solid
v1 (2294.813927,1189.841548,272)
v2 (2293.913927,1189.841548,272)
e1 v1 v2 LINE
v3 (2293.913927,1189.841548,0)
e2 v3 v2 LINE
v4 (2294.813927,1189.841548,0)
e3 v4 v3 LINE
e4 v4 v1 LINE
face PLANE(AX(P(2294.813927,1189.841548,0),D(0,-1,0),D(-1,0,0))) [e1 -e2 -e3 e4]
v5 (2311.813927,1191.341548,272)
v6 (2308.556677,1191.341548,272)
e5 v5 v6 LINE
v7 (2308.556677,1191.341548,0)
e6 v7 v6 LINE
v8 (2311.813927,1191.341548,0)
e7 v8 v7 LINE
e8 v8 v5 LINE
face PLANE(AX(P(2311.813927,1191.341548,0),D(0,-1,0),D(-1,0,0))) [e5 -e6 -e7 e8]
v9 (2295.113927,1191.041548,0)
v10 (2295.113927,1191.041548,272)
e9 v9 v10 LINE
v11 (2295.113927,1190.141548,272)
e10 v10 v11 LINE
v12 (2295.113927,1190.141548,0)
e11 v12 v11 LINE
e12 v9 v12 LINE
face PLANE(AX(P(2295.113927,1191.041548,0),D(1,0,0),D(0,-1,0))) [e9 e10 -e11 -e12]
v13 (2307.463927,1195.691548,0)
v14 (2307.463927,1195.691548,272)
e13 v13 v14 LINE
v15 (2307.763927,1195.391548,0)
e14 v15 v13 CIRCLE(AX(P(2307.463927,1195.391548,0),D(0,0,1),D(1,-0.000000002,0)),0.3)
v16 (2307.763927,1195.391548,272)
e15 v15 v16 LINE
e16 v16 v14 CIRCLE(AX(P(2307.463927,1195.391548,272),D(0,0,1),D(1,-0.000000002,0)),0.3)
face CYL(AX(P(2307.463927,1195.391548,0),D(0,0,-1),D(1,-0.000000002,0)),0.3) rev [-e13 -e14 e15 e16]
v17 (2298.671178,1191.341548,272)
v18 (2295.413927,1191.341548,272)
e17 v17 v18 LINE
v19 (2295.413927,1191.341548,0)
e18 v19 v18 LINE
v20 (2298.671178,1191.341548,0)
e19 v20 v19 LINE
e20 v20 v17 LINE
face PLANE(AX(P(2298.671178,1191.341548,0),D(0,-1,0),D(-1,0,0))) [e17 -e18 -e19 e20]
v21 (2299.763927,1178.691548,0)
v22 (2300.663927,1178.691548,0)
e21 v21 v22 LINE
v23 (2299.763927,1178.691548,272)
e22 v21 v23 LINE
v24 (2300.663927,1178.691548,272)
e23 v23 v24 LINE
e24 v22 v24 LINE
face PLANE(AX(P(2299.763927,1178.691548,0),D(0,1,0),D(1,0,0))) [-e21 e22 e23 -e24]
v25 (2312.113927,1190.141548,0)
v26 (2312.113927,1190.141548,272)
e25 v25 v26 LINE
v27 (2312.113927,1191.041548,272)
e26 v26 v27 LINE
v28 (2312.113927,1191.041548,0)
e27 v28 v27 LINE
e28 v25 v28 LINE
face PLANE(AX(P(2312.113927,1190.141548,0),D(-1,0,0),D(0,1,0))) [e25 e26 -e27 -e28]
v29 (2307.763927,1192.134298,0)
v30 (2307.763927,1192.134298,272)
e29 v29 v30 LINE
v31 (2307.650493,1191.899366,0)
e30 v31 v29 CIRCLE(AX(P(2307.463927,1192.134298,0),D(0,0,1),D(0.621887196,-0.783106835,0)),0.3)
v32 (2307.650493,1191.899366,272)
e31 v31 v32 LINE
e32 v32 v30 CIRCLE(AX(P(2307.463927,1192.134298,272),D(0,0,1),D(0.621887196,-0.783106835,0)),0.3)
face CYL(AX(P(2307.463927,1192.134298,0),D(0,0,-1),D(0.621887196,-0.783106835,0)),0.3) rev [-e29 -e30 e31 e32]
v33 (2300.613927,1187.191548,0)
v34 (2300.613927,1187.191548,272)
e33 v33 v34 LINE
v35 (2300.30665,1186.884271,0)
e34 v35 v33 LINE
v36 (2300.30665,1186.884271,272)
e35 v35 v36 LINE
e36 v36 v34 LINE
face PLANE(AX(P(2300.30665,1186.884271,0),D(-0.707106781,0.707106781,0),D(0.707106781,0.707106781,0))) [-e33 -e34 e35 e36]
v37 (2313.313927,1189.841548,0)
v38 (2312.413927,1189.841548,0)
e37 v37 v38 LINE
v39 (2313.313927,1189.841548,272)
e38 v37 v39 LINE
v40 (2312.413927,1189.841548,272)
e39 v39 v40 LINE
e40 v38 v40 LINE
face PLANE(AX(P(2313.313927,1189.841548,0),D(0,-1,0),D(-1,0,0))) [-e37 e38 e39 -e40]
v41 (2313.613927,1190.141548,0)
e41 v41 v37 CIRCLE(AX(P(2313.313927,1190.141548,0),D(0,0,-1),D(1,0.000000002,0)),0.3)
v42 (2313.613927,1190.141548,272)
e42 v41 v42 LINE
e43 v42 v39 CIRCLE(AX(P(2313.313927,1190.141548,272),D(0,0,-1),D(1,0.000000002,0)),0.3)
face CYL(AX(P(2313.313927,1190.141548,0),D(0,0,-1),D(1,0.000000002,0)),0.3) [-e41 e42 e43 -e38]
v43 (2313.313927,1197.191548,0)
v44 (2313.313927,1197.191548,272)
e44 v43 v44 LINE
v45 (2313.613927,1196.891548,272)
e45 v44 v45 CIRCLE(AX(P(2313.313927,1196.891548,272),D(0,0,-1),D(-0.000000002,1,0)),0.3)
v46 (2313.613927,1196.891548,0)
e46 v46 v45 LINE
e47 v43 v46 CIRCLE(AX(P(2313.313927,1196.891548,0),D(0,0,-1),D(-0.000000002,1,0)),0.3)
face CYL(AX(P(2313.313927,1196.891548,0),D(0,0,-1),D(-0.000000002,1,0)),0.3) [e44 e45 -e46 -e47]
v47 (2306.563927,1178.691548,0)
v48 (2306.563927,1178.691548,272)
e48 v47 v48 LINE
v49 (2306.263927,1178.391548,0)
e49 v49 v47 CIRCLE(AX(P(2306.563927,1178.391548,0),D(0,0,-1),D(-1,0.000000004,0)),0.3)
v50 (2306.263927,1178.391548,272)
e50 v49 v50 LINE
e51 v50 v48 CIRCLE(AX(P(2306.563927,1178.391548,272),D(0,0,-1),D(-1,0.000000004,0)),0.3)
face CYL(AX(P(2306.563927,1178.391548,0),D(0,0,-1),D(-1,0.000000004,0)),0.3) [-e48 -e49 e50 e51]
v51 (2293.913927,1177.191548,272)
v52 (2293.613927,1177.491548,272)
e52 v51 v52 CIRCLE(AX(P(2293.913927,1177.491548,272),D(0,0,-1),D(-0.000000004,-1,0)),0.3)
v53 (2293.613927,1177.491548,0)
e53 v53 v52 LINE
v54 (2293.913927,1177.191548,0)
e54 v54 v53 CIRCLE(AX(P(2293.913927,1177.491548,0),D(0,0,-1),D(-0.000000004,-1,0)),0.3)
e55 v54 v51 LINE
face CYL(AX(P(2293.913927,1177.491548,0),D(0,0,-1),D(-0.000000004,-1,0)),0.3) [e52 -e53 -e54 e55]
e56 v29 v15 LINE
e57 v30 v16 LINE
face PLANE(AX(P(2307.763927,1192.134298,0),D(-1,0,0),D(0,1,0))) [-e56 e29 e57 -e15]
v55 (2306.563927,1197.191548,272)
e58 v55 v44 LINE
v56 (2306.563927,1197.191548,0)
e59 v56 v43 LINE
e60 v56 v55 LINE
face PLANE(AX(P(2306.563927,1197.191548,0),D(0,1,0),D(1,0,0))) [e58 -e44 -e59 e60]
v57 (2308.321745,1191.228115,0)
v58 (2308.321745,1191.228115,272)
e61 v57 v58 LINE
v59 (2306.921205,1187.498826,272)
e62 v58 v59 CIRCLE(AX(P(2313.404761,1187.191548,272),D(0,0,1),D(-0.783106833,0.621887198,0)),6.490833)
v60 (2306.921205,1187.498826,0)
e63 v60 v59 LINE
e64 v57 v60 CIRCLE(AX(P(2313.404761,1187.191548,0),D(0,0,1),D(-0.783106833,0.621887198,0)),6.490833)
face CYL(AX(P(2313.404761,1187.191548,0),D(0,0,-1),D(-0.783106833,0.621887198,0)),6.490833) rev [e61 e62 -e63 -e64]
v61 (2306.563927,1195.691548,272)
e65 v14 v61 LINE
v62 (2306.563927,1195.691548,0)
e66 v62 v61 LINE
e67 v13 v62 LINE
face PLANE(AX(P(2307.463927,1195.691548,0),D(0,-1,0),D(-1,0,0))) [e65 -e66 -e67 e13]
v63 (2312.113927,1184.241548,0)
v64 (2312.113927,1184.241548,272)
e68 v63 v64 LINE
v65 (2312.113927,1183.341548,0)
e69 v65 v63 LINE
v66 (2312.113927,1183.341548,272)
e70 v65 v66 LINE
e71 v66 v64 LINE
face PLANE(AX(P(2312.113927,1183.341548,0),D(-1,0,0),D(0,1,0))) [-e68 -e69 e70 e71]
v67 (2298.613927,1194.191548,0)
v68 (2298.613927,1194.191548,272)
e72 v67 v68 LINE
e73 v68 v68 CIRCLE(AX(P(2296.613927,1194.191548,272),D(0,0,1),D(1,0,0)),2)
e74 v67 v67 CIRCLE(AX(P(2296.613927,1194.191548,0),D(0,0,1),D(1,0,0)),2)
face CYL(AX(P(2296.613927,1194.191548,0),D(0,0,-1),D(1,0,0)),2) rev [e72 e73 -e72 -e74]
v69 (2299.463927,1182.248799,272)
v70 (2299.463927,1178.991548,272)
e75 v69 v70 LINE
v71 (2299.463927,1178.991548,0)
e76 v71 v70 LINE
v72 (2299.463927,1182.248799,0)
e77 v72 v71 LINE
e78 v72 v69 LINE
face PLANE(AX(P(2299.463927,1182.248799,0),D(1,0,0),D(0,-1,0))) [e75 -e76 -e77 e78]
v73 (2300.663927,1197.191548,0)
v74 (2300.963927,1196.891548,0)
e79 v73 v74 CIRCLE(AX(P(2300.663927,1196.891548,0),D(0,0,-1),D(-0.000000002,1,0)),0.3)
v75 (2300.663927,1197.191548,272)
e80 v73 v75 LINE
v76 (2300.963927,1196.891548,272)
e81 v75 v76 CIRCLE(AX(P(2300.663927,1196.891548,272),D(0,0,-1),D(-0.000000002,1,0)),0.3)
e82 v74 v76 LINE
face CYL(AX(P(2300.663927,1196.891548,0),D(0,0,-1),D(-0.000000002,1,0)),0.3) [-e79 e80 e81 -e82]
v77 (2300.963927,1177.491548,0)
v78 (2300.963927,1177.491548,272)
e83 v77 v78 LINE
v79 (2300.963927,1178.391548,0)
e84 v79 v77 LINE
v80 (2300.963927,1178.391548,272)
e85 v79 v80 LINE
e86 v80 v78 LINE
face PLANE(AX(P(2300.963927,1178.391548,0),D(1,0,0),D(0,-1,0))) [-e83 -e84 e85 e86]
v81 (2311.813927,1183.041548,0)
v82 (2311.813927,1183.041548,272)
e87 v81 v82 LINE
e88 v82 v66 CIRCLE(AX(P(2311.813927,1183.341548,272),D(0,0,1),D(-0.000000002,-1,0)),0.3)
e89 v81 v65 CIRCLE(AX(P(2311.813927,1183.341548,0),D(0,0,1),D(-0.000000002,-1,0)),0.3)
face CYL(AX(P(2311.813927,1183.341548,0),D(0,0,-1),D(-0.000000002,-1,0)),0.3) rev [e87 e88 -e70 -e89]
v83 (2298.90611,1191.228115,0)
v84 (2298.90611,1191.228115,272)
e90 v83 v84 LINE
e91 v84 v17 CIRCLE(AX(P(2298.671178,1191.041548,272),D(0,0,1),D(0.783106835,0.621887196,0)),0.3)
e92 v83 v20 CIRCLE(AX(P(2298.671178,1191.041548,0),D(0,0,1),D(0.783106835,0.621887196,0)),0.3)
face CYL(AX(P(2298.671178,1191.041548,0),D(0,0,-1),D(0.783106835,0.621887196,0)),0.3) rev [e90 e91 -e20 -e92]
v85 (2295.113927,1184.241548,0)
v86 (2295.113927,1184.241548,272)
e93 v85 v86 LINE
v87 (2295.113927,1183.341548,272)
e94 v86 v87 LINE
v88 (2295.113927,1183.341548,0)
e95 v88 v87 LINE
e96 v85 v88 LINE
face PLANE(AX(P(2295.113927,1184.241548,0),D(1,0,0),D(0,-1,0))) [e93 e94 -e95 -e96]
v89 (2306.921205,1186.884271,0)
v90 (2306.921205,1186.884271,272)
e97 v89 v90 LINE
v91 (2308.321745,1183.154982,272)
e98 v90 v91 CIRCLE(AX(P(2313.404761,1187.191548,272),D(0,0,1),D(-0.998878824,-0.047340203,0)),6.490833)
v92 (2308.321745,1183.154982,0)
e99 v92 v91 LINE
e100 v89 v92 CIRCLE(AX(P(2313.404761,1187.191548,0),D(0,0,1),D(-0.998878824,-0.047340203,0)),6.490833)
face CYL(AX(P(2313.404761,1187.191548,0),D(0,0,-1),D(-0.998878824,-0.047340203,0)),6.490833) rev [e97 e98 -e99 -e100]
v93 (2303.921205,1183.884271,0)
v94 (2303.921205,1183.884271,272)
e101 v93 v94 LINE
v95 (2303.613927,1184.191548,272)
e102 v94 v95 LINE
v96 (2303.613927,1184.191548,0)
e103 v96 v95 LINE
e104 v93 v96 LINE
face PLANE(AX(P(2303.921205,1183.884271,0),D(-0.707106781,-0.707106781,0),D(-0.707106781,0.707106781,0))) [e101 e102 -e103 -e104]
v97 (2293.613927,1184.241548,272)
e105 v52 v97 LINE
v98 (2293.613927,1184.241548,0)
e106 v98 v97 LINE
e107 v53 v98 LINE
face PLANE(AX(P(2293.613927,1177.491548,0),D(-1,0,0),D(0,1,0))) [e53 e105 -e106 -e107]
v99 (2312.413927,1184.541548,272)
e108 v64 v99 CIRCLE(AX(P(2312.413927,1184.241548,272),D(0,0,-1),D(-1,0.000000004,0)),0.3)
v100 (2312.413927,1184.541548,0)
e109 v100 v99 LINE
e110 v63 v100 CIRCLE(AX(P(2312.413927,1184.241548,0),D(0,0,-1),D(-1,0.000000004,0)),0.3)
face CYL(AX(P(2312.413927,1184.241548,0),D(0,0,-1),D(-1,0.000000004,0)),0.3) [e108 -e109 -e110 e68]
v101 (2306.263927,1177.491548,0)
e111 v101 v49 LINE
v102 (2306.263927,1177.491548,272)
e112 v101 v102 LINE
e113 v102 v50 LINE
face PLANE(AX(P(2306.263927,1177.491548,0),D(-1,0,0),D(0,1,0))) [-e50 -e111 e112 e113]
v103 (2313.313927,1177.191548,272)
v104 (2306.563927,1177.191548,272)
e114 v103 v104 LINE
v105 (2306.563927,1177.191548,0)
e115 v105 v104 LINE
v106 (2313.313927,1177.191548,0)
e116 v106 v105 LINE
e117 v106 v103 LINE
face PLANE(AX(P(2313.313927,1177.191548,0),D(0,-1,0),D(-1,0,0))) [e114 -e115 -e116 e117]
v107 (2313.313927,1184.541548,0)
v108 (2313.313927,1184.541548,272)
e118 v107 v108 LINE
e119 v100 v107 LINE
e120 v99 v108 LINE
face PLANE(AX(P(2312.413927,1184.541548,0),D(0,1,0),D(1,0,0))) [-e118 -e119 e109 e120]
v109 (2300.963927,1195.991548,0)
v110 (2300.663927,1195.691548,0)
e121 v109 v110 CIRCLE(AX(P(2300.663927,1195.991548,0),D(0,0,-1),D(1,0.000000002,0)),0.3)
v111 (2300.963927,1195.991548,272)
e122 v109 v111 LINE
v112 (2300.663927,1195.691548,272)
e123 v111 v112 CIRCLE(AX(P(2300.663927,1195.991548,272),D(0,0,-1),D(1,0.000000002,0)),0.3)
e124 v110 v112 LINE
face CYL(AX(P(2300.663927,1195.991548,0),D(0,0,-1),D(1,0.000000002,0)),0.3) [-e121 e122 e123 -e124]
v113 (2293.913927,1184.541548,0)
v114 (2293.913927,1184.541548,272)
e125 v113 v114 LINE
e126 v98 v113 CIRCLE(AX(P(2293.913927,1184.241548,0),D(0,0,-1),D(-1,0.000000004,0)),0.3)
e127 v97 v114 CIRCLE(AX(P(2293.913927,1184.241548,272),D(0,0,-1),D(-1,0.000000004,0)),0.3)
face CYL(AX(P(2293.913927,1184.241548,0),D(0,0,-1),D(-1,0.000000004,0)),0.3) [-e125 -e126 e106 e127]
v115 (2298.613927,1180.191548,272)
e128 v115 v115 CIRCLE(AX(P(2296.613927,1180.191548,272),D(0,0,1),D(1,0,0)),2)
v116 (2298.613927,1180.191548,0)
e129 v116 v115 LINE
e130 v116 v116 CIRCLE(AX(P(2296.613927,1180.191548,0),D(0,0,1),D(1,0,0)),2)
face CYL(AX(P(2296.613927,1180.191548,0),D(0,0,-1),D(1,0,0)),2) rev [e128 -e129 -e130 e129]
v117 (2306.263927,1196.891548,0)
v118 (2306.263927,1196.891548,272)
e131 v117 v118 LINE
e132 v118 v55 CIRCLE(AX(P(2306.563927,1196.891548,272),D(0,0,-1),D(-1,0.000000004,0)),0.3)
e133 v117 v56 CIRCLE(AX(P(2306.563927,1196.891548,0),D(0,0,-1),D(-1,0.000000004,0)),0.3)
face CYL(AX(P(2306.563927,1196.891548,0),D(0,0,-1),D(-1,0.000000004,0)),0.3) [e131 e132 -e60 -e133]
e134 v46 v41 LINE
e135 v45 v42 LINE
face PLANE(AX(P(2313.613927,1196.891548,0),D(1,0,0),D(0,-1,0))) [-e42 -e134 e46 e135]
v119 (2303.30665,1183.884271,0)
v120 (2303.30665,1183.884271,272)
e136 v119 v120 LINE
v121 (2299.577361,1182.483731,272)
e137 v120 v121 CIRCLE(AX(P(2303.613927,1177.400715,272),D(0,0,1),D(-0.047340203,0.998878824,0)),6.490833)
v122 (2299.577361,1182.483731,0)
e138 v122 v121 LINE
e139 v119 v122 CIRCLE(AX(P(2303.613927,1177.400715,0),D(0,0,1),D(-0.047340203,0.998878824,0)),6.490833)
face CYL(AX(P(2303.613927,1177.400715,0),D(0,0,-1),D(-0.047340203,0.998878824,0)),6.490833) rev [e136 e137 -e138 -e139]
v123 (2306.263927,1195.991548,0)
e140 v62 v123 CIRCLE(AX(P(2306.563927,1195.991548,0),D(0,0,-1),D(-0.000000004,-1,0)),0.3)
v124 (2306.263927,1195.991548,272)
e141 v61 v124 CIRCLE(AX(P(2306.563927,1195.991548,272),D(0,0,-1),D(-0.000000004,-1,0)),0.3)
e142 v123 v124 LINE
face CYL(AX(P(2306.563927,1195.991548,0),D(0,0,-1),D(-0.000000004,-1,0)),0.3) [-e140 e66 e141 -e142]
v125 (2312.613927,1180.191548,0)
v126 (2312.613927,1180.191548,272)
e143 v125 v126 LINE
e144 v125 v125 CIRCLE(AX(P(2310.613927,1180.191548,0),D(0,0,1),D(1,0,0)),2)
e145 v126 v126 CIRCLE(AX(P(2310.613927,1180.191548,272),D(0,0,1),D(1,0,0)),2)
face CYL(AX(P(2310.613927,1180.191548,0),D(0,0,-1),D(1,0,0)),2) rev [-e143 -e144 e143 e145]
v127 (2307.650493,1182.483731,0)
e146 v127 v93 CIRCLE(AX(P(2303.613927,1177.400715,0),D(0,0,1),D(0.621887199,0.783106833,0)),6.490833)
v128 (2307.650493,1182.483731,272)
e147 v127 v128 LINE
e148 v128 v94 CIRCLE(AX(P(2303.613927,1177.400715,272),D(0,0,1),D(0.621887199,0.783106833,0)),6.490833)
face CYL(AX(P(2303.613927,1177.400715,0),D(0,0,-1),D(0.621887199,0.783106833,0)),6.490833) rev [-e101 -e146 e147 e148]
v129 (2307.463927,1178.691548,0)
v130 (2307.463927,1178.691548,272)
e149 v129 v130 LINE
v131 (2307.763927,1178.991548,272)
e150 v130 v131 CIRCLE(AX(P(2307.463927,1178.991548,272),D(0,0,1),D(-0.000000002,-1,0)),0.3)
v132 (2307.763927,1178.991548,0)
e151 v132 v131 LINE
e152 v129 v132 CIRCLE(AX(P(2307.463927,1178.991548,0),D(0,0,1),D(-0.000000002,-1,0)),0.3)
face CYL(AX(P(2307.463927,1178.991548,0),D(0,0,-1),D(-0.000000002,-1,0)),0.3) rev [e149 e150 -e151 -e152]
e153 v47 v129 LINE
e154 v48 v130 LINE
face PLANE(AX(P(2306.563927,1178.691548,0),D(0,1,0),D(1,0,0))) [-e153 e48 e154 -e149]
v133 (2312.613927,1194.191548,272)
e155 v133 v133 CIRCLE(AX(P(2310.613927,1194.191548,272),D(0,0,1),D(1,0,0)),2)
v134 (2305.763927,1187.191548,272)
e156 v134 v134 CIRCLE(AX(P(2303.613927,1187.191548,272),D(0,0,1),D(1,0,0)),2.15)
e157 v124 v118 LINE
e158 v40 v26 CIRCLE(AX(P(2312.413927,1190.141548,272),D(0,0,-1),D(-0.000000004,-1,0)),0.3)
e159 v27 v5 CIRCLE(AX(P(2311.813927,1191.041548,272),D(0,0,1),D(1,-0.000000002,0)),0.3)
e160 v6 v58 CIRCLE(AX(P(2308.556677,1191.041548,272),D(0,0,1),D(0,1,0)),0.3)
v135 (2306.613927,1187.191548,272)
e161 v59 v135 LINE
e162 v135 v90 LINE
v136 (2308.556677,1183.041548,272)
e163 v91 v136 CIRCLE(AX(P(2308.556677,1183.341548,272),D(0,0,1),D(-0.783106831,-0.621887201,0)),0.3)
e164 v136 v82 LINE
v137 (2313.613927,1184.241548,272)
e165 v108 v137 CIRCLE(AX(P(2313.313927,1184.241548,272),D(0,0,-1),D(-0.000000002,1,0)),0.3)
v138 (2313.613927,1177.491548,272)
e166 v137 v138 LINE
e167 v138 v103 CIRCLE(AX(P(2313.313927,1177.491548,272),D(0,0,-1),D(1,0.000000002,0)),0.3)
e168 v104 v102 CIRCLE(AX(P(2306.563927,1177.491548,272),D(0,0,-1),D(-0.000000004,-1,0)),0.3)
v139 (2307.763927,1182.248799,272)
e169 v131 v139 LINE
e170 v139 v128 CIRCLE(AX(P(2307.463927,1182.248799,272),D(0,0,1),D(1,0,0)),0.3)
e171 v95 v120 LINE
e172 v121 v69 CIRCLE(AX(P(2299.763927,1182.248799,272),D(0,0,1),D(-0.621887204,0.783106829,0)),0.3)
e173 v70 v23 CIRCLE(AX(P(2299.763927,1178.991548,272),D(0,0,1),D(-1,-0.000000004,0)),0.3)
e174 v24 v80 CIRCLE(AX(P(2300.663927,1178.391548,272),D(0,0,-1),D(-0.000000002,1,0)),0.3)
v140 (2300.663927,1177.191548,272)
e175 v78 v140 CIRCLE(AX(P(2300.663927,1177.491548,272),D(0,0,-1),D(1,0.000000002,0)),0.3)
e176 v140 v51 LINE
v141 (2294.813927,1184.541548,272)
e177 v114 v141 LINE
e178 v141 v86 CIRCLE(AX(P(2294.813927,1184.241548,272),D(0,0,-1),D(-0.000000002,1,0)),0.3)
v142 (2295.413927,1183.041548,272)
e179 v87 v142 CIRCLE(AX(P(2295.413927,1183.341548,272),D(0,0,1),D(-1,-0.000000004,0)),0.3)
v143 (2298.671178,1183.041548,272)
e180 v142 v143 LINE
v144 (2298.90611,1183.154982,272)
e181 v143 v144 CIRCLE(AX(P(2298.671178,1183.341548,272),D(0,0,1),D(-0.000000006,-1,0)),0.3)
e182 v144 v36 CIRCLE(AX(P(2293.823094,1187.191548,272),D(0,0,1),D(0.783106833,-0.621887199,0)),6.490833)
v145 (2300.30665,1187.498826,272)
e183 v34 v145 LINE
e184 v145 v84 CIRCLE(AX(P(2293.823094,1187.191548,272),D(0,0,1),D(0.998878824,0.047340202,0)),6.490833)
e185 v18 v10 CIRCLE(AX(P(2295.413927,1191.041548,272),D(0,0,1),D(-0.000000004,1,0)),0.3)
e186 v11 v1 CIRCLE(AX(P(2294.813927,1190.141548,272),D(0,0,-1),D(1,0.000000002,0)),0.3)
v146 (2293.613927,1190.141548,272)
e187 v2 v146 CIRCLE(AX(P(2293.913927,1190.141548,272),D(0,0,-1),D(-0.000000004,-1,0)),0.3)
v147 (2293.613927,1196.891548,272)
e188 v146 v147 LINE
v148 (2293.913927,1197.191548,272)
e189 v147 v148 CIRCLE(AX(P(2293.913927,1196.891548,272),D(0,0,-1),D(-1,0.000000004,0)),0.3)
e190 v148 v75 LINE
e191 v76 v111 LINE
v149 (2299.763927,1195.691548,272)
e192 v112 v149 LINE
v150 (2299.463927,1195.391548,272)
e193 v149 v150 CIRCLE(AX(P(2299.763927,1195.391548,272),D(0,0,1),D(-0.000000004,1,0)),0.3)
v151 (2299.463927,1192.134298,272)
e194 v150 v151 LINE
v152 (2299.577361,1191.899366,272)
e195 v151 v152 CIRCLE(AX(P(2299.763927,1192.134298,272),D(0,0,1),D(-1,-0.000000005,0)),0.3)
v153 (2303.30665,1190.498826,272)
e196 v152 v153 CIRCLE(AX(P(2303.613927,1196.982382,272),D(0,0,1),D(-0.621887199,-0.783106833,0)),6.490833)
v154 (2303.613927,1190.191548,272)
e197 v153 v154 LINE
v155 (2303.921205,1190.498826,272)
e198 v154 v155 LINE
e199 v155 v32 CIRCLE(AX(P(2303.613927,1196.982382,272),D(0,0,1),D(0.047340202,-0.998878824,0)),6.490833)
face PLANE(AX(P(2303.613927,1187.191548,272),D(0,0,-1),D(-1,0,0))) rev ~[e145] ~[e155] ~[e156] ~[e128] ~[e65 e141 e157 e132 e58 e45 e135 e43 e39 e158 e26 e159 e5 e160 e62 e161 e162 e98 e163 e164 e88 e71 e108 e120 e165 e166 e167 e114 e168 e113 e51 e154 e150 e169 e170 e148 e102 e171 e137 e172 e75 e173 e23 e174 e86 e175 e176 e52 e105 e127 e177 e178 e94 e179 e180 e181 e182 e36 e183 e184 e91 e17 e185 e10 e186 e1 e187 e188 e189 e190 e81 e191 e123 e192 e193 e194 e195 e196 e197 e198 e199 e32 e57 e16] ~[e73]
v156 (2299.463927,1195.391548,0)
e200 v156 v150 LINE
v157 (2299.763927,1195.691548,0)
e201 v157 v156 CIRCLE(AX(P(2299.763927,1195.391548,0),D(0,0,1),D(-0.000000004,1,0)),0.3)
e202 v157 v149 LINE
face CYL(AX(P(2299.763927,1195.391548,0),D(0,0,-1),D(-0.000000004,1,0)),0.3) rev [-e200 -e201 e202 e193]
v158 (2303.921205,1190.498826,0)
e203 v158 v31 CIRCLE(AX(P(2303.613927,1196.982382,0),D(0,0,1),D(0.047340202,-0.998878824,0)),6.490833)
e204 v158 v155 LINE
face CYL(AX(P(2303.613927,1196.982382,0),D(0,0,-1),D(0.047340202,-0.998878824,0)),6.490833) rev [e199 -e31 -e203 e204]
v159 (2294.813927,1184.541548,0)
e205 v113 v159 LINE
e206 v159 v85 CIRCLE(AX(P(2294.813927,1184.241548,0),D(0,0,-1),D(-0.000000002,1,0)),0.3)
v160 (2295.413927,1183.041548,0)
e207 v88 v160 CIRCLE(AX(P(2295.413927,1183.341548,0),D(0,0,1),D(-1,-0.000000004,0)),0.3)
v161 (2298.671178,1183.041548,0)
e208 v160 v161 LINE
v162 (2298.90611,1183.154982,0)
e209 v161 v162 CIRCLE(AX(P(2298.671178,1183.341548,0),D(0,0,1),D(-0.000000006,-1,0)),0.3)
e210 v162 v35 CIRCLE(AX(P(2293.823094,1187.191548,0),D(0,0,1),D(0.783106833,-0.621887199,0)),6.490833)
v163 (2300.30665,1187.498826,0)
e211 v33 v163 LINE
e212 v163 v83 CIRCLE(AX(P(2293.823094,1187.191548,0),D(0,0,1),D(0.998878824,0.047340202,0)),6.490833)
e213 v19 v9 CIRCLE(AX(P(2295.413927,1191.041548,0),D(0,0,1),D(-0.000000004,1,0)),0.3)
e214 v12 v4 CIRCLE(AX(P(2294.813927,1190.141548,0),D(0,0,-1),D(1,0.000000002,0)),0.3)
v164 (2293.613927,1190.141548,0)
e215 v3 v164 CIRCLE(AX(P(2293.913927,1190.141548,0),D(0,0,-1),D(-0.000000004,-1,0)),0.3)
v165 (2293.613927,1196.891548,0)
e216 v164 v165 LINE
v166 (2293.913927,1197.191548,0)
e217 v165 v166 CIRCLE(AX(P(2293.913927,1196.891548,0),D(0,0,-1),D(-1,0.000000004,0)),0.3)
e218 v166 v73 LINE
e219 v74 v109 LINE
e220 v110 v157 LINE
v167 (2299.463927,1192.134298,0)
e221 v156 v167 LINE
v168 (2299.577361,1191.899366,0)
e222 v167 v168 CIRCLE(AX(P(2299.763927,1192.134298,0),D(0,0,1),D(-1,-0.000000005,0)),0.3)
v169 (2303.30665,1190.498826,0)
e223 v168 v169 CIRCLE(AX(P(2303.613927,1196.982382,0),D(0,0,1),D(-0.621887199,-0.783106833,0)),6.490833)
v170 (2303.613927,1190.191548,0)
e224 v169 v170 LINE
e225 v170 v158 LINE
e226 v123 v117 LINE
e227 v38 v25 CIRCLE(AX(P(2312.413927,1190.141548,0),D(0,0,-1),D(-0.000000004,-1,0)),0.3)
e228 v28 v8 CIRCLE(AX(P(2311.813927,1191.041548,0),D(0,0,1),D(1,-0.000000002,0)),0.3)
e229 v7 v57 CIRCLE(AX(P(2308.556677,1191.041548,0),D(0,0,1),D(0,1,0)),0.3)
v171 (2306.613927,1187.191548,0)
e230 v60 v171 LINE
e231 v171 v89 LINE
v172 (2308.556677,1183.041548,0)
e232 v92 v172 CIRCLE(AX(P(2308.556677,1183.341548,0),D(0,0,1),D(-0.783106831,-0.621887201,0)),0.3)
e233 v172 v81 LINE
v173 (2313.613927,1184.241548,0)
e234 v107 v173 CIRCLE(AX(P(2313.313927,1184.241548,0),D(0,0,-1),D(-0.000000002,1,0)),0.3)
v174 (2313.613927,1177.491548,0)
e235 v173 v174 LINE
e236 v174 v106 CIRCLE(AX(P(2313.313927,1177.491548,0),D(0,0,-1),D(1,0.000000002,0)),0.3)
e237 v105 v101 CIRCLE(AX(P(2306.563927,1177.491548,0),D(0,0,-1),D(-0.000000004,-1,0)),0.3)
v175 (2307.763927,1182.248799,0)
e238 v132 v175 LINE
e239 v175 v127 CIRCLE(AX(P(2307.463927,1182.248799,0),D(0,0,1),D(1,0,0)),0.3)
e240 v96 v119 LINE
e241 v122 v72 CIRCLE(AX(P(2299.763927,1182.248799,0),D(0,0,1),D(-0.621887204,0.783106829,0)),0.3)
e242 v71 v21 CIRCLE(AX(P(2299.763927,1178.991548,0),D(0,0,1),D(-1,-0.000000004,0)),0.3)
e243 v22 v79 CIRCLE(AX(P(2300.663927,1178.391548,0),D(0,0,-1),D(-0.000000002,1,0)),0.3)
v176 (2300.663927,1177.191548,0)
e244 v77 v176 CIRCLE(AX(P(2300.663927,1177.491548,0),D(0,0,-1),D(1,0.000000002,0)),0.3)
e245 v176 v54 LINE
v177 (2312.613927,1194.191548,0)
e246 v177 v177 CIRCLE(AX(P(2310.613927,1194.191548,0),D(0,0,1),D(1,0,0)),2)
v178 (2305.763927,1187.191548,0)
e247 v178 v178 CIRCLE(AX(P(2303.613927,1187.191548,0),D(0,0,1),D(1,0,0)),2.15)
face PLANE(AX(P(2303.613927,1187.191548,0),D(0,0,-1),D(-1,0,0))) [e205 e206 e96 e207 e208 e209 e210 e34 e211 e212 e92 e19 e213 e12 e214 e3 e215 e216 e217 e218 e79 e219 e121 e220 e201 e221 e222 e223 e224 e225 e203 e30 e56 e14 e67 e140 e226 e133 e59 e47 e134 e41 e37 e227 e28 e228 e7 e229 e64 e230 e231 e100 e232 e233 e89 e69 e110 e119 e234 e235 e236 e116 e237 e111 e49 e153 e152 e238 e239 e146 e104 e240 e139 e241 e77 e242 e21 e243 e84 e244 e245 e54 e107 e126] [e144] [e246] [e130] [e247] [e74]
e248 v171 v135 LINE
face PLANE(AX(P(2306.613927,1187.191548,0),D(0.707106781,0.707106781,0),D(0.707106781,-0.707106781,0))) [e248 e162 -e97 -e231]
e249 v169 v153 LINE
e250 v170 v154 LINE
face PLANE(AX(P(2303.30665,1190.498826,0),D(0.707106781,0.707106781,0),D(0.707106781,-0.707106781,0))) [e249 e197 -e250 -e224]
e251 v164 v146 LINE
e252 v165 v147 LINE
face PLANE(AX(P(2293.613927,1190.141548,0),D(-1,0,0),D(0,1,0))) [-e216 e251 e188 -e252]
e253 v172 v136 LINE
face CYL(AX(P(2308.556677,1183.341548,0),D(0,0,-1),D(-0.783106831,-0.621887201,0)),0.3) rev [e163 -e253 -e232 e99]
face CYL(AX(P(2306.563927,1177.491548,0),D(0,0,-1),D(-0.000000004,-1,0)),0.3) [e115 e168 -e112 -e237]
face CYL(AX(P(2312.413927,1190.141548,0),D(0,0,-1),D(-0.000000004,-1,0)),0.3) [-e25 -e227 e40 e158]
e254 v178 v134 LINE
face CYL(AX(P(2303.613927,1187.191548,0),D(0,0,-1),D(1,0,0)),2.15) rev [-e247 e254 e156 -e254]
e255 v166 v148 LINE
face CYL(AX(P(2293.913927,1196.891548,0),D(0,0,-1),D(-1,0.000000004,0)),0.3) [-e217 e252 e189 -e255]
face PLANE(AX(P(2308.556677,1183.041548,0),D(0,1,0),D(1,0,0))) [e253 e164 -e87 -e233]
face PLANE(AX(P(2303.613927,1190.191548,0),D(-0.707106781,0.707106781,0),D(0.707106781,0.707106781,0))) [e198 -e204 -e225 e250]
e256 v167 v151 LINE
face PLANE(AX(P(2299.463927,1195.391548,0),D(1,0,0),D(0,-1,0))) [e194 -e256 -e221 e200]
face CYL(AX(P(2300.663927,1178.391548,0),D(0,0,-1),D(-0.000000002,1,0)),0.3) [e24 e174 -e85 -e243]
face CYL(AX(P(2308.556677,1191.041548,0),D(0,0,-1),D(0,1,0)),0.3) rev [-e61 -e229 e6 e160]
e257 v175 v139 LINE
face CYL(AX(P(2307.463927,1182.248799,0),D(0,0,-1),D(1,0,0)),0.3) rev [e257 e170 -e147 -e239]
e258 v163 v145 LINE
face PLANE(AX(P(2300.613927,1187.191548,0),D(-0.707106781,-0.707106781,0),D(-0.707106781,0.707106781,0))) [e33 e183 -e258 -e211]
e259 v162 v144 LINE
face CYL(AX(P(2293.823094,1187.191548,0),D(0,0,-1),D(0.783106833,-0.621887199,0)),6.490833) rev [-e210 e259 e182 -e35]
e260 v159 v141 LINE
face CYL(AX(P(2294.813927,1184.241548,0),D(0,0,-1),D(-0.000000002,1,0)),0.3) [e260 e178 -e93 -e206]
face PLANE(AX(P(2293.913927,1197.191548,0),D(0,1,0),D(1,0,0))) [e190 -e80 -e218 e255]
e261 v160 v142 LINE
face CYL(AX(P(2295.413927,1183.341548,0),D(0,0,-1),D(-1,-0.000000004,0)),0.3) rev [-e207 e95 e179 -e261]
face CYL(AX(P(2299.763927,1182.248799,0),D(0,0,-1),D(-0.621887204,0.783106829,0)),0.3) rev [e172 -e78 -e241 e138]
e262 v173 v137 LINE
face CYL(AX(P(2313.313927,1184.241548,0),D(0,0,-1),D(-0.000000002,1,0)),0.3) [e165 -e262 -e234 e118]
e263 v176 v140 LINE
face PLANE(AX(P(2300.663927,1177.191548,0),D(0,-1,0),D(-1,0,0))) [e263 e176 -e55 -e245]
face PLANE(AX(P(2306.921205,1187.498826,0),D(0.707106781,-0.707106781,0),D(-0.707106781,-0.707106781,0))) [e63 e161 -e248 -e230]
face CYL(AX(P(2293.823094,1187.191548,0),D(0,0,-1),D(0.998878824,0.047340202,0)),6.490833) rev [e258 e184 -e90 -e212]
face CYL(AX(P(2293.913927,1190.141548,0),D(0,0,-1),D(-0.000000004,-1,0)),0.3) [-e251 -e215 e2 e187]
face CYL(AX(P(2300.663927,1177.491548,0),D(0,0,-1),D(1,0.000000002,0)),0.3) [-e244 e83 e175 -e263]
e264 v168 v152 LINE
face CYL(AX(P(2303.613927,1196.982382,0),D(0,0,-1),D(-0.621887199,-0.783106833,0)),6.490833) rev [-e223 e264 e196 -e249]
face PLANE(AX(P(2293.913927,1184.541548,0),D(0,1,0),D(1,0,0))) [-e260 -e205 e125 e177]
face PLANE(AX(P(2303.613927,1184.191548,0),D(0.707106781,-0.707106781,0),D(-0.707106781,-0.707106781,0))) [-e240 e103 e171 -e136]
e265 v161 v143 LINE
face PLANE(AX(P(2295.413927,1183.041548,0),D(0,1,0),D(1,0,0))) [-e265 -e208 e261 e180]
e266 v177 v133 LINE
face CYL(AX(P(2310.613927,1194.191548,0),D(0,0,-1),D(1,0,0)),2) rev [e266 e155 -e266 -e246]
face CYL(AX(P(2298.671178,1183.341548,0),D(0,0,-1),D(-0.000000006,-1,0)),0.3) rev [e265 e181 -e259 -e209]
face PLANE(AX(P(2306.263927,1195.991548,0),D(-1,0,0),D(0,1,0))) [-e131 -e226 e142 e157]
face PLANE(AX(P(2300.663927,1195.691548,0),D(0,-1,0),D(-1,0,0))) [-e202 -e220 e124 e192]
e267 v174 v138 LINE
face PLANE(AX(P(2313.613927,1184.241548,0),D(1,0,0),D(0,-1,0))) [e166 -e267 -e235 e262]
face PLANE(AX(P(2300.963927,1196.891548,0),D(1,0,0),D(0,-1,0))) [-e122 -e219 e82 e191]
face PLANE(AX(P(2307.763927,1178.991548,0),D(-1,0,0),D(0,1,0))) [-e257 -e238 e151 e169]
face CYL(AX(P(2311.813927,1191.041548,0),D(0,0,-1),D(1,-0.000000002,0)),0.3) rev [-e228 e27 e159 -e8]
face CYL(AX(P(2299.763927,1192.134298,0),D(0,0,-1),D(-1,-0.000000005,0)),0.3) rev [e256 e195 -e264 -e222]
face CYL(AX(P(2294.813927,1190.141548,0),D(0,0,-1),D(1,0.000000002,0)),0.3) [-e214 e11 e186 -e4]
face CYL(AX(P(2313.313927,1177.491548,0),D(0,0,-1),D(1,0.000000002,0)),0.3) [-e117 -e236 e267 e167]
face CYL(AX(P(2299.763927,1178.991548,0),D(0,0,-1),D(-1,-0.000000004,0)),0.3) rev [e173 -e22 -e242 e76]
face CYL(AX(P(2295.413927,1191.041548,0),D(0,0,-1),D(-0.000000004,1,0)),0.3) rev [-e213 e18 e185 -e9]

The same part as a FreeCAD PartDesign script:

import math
import FreeCAD as App
import Part
import Sketcher
Q = App.Units.Quantity

doc = App.newDocument("Part")
body = doc.addObject("PartDesign::Body", "Body")

# Sketch on XY plane
sketch1 = doc.addObject("Sketcher::SketchObject", "Sketch")
body.addObject(sketch1)
sketch1.AttachmentSupport = (doc.XY_Plane, [""])
sketch1.MapMode = "FlatFace"
sketch1.addGeometry([
    Part.LineSegment(App.Vector(2307.763927, 1195.391548, 0), App.Vector(2307.763927, 1192.134298, 0)),  # 0
    Part.ArcOfCircle(Part.Circle(App.Vector(2307.463927, 1192.134298, 0), App.Vector(0, 0, 1), 0.3), math.radians(-51.545921), math.radians(0)),  # 1
    Part.ArcOfCircle(Part.Circle(App.Vector(2303.613927, 1196.982382, 0), App.Vector(0, 0, 1), 6.490833), math.radians(-87.286592), math.radians(-51.545921)),  # 2
    Part.LineSegment(App.Vector(2303.921205, 1190.498826, 0), App.Vector(2303.613927, 1190.191548, 0)),  # 3
    Part.LineSegment(App.Vector(2303.613927, 1190.191548, 0), App.Vector(2303.30665, 1190.498826, 0)),  # 4
    Part.ArcOfCircle(Part.Circle(App.Vector(2303.613927, 1196.982382, 0), App.Vector(0, 0, 1), 6.490833), math.radians(-128.454079), math.radians(-92.713408)),  # 5
    Part.ArcOfCircle(Part.Circle(App.Vector(2299.763927, 1192.134298, 0), App.Vector(0, 0, 1), 0.3), math.radians(-180), math.radians(-128.454079)),  # 6
    Part.LineSegment(App.Vector(2299.463927, 1192.134298, 0), App.Vector(2299.463927, 1195.391548, 0)),  # 7
    Part.ArcOfCircle(Part.Circle(App.Vector(2299.763927, 1195.391548, 0), App.Vector(0, 0, 1), 0.3), math.radians(90), math.radians(180)),  # 8
    Part.LineSegment(App.Vector(2299.763927, 1195.691548, 0), App.Vector(2300.663927, 1195.691548, 0)),  # 9
    Part.ArcOfCircle(Part.Circle(App.Vector(2300.663927, 1195.991548, 0), App.Vector(0, 0, 1), 0.3), math.radians(-90), math.radians(0)),  # 10
    Part.LineSegment(App.Vector(2300.963927, 1195.991548, 0), App.Vector(2300.963927, 1196.891548, 0)),  # 11
    Part.ArcOfCircle(Part.Circle(App.Vector(2300.663927, 1196.891548, 0), App.Vector(0, 0, 1), 0.3), math.radians(0), math.radians(90)),  # 12
    Part.LineSegment(App.Vector(2300.663927, 1197.191548, 0), App.Vector(2293.913927, 1197.191548, 0)),  # 13
    Part.ArcOfCircle(Part.Circle(App.Vector(2293.913927, 1196.891548, 0), App.Vector(0, 0, 1), 0.3), math.radians(90), math.radians(180)),  # 14
    Part.LineSegment(App.Vector(2293.613927, 1196.891548, 0), App.Vector(2293.613927, 1190.141548, 0)),  # 15
    Part.ArcOfCircle(Part.Circle(App.Vector(2293.913927, 1190.141548, 0), App.Vector(0, 0, 1), 0.3), math.radians(-180), math.radians(-90)),  # 16
    Part.LineSegment(App.Vector(2293.913927, 1189.841548, 0), App.Vector(2294.813927, 1189.841548, 0)),  # 17
    Part.ArcOfCircle(Part.Circle(App.Vector(2294.813927, 1190.141548, 0), App.Vector(0, 0, 1), 0.3), math.radians(-90), math.radians(0)),  # 18
    Part.LineSegment(App.Vector(2295.113927, 1190.141548, 0), App.Vector(2295.113927, 1191.041548, 0)),  # 19
    Part.ArcOfCircle(Part.Circle(App.Vector(2295.413927, 1191.041548, 0), App.Vector(0, 0, 1), 0.3), math.radians(90), math.radians(180)),  # 20
    Part.LineSegment(App.Vector(2295.413927, 1191.341548, 0), App.Vector(2298.671178, 1191.341548, 0)),  # 21
    Part.ArcOfCircle(Part.Circle(App.Vector(2298.671178, 1191.041548, 0), App.Vector(0, 0, 1), 0.3), math.radians(38.454079), math.radians(90)),  # 22
    Part.ArcOfCircle(Part.Circle(App.Vector(2293.823094, 1187.191548, 0), App.Vector(0, 0, 1), 6.490833), math.radians(2.713408), math.radians(38.454079)),  # 23
    Part.LineSegment(App.Vector(2300.30665, 1187.498826, 0), App.Vector(2300.613927, 1187.191548, 0)),  # 24
    Part.LineSegment(App.Vector(2300.613927, 1187.191548, 0), App.Vector(2300.30665, 1186.884271, 0)),  # 25
    Part.ArcOfCircle(Part.Circle(App.Vector(2293.823094, 1187.191548, 0), App.Vector(0, 0, 1), 6.490833), math.radians(-38.454079), math.radians(-2.713408)),  # 26
    Part.ArcOfCircle(Part.Circle(App.Vector(2298.671178, 1183.341548, 0), App.Vector(0, 0, 1), 0.3), math.radians(-90), math.radians(-38.454079)),  # 27
    Part.LineSegment(App.Vector(2298.671178, 1183.041548, 0), App.Vector(2295.413927, 1183.041548, 0)),  # 28
    Part.ArcOfCircle(Part.Circle(App.Vector(2295.413927, 1183.341548, 0), App.Vector(0, 0, 1), 0.3), math.radians(-180), math.radians(-90)),  # 29
    Part.LineSegment(App.Vector(2295.113927, 1183.341548, 0), App.Vector(2295.113927, 1184.241548, 0)),  # 30
    Part.ArcOfCircle(Part.Circle(App.Vector(2294.813927, 1184.241548, 0), App.Vector(0, 0, 1), 0.3), math.radians(0), math.radians(90)),  # 31
    Part.LineSegment(App.Vector(2294.813927, 1184.541548, 0), App.Vector(2293.913927, 1184.541548, 0)),  # 32
    Part.ArcOfCircle(Part.Circle(App.Vector(2293.913927, 1184.241548, 0), App.Vector(0, 0, 1), 0.3), math.radians(90), math.radians(180)),  # 33
    Part.LineSegment(App.Vector(2293.613927, 1184.241548, 0), App.Vector(2293.613927, 1177.491548, 0)),  # 34
    Part.ArcOfCircle(Part.Circle(App.Vector(2293.913927, 1177.491548, 0), App.Vector(0, 0, 1), 0.3), math.radians(-180), math.radians(-90)),  # 35
    Part.LineSegment(App.Vector(2293.913927, 1177.191548, 0), App.Vector(2300.663927, 1177.191548, 0)),  # 36
    Part.ArcOfCircle(Part.Circle(App.Vector(2300.663927, 1177.491548, 0), App.Vector(0, 0, 1), 0.3), math.radians(-90), math.radians(0)),  # 37
    Part.LineSegment(App.Vector(2300.963927, 1177.491548, 0), App.Vector(2300.963927, 1178.391548, 0)),  # 38
    Part.ArcOfCircle(Part.Circle(App.Vector(2300.663927, 1178.391548, 0), App.Vector(0, 0, 1), 0.3), math.radians(0), math.radians(90)),  # 39
    Part.LineSegment(App.Vector(2300.663927, 1178.691548, 0), App.Vector(2299.763927, 1178.691548, 0)),  # 40
    Part.ArcOfCircle(Part.Circle(App.Vector(2299.763927, 1178.991548, 0), App.Vector(0, 0, 1), 0.3), math.radians(-180), math.radians(-90)),  # 41
    Part.LineSegment(App.Vector(2299.463927, 1178.991548, 0), App.Vector(2299.463927, 1182.248799, 0)),  # 42
    Part.ArcOfCircle(Part.Circle(App.Vector(2299.763927, 1182.248799, 0), App.Vector(0, 0, 1), 0.3), math.radians(128.45408), math.radians(179.999999)),  # 43
    Part.ArcOfCircle(Part.Circle(App.Vector(2303.613927, 1177.400715, 0), App.Vector(0, 0, 1), 6.490833), math.radians(92.713408), math.radians(128.454079)),  # 44
    Part.LineSegment(App.Vector(2303.30665, 1183.884271, 0), App.Vector(2303.613927, 1184.191548, 0)),  # 45
    Part.LineSegment(App.Vector(2303.613927, 1184.191548, 0), App.Vector(2303.921205, 1183.884271, 0)),  # 46
    Part.ArcOfCircle(Part.Circle(App.Vector(2303.613927, 1177.400715, 0), App.Vector(0, 0, 1), 6.490833), math.radians(51.545921), math.radians(87.286592)),  # 47
    Part.ArcOfCircle(Part.Circle(App.Vector(2307.463927, 1182.248799, 0), App.Vector(0, 0, 1), 0.3), math.radians(0), math.radians(51.545921)),  # 48
    Part.LineSegment(App.Vector(2307.763927, 1182.248799, 0), App.Vector(2307.763927, 1178.991548, 0)),  # 49
    Part.ArcOfCircle(Part.Circle(App.Vector(2307.463927, 1178.991548, 0), App.Vector(0, 0, 1), 0.3), math.radians(-90), math.radians(0)),  # 50
    Part.LineSegment(App.Vector(2307.463927, 1178.691548, 0), App.Vector(2306.563927, 1178.691548, 0)),  # 51
    Part.ArcOfCircle(Part.Circle(App.Vector(2306.563927, 1178.391548, 0), App.Vector(0, 0, 1), 0.3), math.radians(90), math.radians(180)),  # 52
    Part.LineSegment(App.Vector(2306.263927, 1178.391548, 0), App.Vector(2306.263927, 1177.491548, 0)),  # 53
    Part.ArcOfCircle(Part.Circle(App.Vector(2306.563927, 1177.491548, 0), App.Vector(0, 0, 1), 0.3), math.radians(-180), math.radians(-90)),  # 54
    Part.LineSegment(App.Vector(2306.563927, 1177.191548, 0), App.Vector(2313.313927, 1177.191548, 0)),  # 55
    Part.ArcOfCircle(Part.Circle(App.Vector(2313.313927, 1177.491548, 0), App.Vector(0, 0, 1), 0.3), math.radians(-90), math.radians(0)),  # 56
    Part.LineSegment(App.Vector(2313.613927, 1177.491548, 0), App.Vector(2313.613927, 1184.241548, 0)),  # 57
    Part.ArcOfCircle(Part.Circle(App.Vector(2313.313927, 1184.241548, 0), App.Vector(0, 0, 1), 0.3), math.radians(0), math.radians(90)),  # 58
    Part.LineSegment(App.Vector(2313.313927, 1184.541548, 0), App.Vector(2312.413927, 1184.541548, 0)),  # 59
    Part.ArcOfCircle(Part.Circle(App.Vector(2312.413927, 1184.241548, 0), App.Vector(0, 0, 1), 0.3), math.radians(90), math.radians(180)),  # 60
    Part.LineSegment(App.Vector(2312.113927, 1184.241548, 0), App.Vector(2312.113927, 1183.341548, 0)),  # 61
    Part.ArcOfCircle(Part.Circle(App.Vector(2311.813927, 1183.341548, 0), App.Vector(0, 0, 1), 0.3), math.radians(-90), math.radians(0)),  # 62
    Part.LineSegment(App.Vector(2311.813927, 1183.041548, 0), App.Vector(2308.556677, 1183.041548, 0)),  # 63
    Part.ArcOfCircle(Part.Circle(App.Vector(2308.556677, 1183.341548, 0), App.Vector(0, 0, 1), 0.3), math.radians(-141.545921), math.radians(-90)),  # 64
    Part.ArcOfCircle(Part.Circle(App.Vector(2313.404761, 1187.191548, 0), App.Vector(0, 0, 1), 6.490833), math.radians(-177.286592), math.radians(-141.545921)),  # 65
    Part.LineSegment(App.Vector(2306.921205, 1186.884271, 0), App.Vector(2306.613927, 1187.191548, 0)),  # 66
    Part.LineSegment(App.Vector(2306.613927, 1187.191548, 0), App.Vector(2306.921205, 1187.498826, 0)),  # 67
    Part.ArcOfCircle(Part.Circle(App.Vector(2313.404761, 1187.191548, 0), App.Vector(0, 0, 1), 6.490833), math.radians(141.545921), math.radians(177.286592)),  # 68
    Part.ArcOfCircle(Part.Circle(App.Vector(2308.556677, 1191.041548, 0), App.Vector(0, 0, 1), 0.3), math.radians(90), math.radians(141.545921)),  # 69
    Part.LineSegment(App.Vector(2308.556677, 1191.341548, 0), App.Vector(2311.813927, 1191.341548, 0)),  # 70
    Part.ArcOfCircle(Part.Circle(App.Vector(2311.813927, 1191.041548, 0), App.Vector(0, 0, 1), 0.3), math.radians(0), math.radians(90)),  # 71
    Part.LineSegment(App.Vector(2312.113927, 1191.041548, 0), App.Vector(2312.113927, 1190.141548, 0)),  # 72
    Part.ArcOfCircle(Part.Circle(App.Vector(2312.413927, 1190.141548, 0), App.Vector(0, 0, 1), 0.3), math.radians(-180), math.radians(-90)),  # 73
    Part.LineSegment(App.Vector(2312.413927, 1189.841548, 0), App.Vector(2313.313927, 1189.841548, 0)),  # 74
    Part.ArcOfCircle(Part.Circle(App.Vector(2313.313927, 1190.141548, 0), App.Vector(0, 0, 1), 0.3), math.radians(-90), math.radians(0)),  # 75
    Part.LineSegment(App.Vector(2313.613927, 1190.141548, 0), App.Vector(2313.613927, 1196.891548, 0)),  # 76
    Part.ArcOfCircle(Part.Circle(App.Vector(2313.313927, 1196.891548, 0), App.Vector(0, 0, 1), 0.3), math.radians(0), math.radians(90)),  # 77
    Part.LineSegment(App.Vector(2313.313927, 1197.191548, 0), App.Vector(2306.563927, 1197.191548, 0)),  # 78
    Part.ArcOfCircle(Part.Circle(App.Vector(2306.563927, 1196.891548, 0), App.Vector(0, 0, 1), 0.3), math.radians(90), math.radians(180)),  # 79
    Part.LineSegment(App.Vector(2306.263927, 1196.891548, 0), App.Vector(2306.263927, 1195.991548, 0)),  # 80
    Part.ArcOfCircle(Part.Circle(App.Vector(2306.563927, 1195.991548, 0), App.Vector(0, 0, 1), 0.3), math.radians(-180), math.radians(-90)),  # 81
    Part.LineSegment(App.Vector(2306.563927, 1195.691548, 0), App.Vector(2307.463927, 1195.691548, 0)),  # 82
    Part.ArcOfCircle(Part.Circle(App.Vector(2307.463927, 1195.391548, 0), App.Vector(0, 0, 1), 0.3), math.radians(0), math.radians(90)),  # 83
    Part.Circle(App.Vector(2310.613927, 1180.191548, 0), App.Vector(0, 0, 1), 2),  # 84
    Part.Circle(App.Vector(2296.613927, 1180.191548, 0), App.Vector(0, 0, 1), 2),  # 85
    Part.Circle(App.Vector(2310.613927, 1194.191548, 0), App.Vector(0, 0, 1), 2),  # 86
    Part.Circle(App.Vector(2303.613927, 1187.191548, 0), App.Vector(0, 0, 1), 2.15),  # 87
    Part.Circle(App.Vector(2296.613927, 1194.191548, 0), App.Vector(0, 0, 1), 2),  # 88
], False)
sketch1.addConstraint([
    Sketcher.Constraint("Tangent", 0, 2, 1, 2),
    Sketcher.Constraint("Tangent", 1, 1, 2, 2),
    Sketcher.Constraint("Coincident", 2, 1, 3, 1),
    Sketcher.Constraint("Coincident", 3, 2, 4, 1),
    Sketcher.Constraint("Coincident", 4, 2, 5, 2),
    Sketcher.Constraint("Tangent", 5, 1, 6, 2),
    Sketcher.Constraint("Tangent", 6, 1, 7, 1),
    Sketcher.Constraint("Tangent", 7, 2, 8, 2),
    Sketcher.Constraint("Tangent", 8, 1, 9, 1),
    Sketcher.Constraint("Tangent", 9, 2, 10, 1),
    Sketcher.Constraint("Tangent", 10, 2, 11, 1),
    Sketcher.Constraint("Tangent", 11, 2, 12, 1),
    Sketcher.Constraint("Tangent", 12, 2, 13, 1),
    Sketcher.Constraint("Tangent", 13, 2, 14, 1),
    Sketcher.Constraint("Tangent", 14, 2, 15, 1),
    Sketcher.Constraint("Tangent", 15, 2, 16, 1),
    Sketcher.Constraint("Tangent", 16, 2, 17, 1),
    Sketcher.Constraint("Tangent", 17, 2, 18, 1),
    Sketcher.Constraint("Tangent", 18, 2, 19, 1),
    Sketcher.Constraint("Tangent", 19, 2, 20, 2),
    Sketcher.Constraint("Tangent", 20, 1, 21, 1),
    Sketcher.Constraint("Tangent", 21, 2, 22, 2),
    Sketcher.Constraint("Tangent", 22, 1, 23, 2),
    Sketcher.Constraint("Coincident", 23, 1, 24, 1),
    Sketcher.Constraint("Coincident", 24, 2, 25, 1),
    Sketcher.Constraint("Coincident", 25, 2, 26, 2),
    Sketcher.Constraint("Tangent", 26, 1, 27, 2),
    Sketcher.Constraint("Tangent", 27, 1, 28, 1),
    Sketcher.Constraint("Tangent", 28, 2, 29, 2),
    Sketcher.Constraint("Tangent", 29, 1, 30, 1),
    Sketcher.Constraint("Tangent", 30, 2, 31, 1),
    Sketcher.Constraint("Tangent", 31, 2, 32, 1),
    Sketcher.Constraint("Tangent", 32, 2, 33, 1),
    Sketcher.Constraint("Tangent", 33, 2, 34, 1),
    Sketcher.Constraint("Tangent", 34, 2, 35, 1),
    Sketcher.Constraint("Tangent", 35, 2, 36, 1),
    Sketcher.Constraint("Tangent", 36, 2, 37, 1),
    Sketcher.Constraint("Tangent", 37, 2, 38, 1),
    Sketcher.Constraint("Tangent", 38, 2, 39, 1),
    Sketcher.Constraint("Tangent", 39, 2, 40, 1),
    Sketcher.Constraint("Tangent", 40, 2, 41, 2),
    Sketcher.Constraint("Tangent", 41, 1, 42, 1),
    Sketcher.Constraint("Tangent", 42, 2, 43, 2),
    Sketcher.Constraint("Tangent", 43, 1, 44, 2),
    Sketcher.Constraint("Coincident", 44, 1, 45, 1),
    Sketcher.Constraint("Coincident", 45, 2, 46, 1),
    Sketcher.Constraint("Coincident", 46, 2, 47, 2),
    Sketcher.Constraint("Tangent", 47, 1, 48, 2),
    Sketcher.Constraint("Tangent", 48, 1, 49, 1),
    Sketcher.Constraint("Tangent", 49, 2, 50, 2),
    Sketcher.Constraint("Tangent", 50, 1, 51, 1),
    Sketcher.Constraint("Tangent", 51, 2, 52, 1),
    Sketcher.Constraint("Tangent", 52, 2, 53, 1),
    Sketcher.Constraint("Tangent", 53, 2, 54, 1),
    Sketcher.Constraint("Tangent", 54, 2, 55, 1),
    Sketcher.Constraint("Tangent", 55, 2, 56, 1),
    Sketcher.Constraint("Tangent", 56, 2, 57, 1),
    Sketcher.Constraint("Tangent", 57, 2, 58, 1),
    Sketcher.Constraint("Tangent", 58, 2, 59, 1),
    Sketcher.Constraint("Tangent", 59, 2, 60, 1),
    Sketcher.Constraint("Tangent", 60, 2, 61, 1),
    Sketcher.Constraint("Tangent", 61, 2, 62, 2),
    Sketcher.Constraint("Tangent", 62, 1, 63, 1),
    Sketcher.Constraint("Tangent", 63, 2, 64, 2),
    Sketcher.Constraint("Tangent", 64, 1, 65, 2),
    Sketcher.Constraint("Coincident", 65, 1, 66, 1),
    Sketcher.Constraint("Coincident", 66, 2, 67, 1),
    Sketcher.Constraint("Coincident", 67, 2, 68, 2),
    Sketcher.Constraint("Tangent", 68, 1, 69, 2),
    Sketcher.Constraint("Tangent", 69, 1, 70, 1),
    Sketcher.Constraint("Tangent", 70, 2, 71, 2),
    Sketcher.Constraint("Tangent", 71, 1, 72, 1),
    Sketcher.Constraint("Tangent", 72, 2, 73, 1),
    Sketcher.Constraint("Tangent", 73, 2, 74, 1),
    Sketcher.Constraint("Tangent", 74, 2, 75, 1),
    Sketcher.Constraint("Tangent", 75, 2, 76, 1),
    Sketcher.Constraint("Tangent", 76, 2, 77, 1),
    Sketcher.Constraint("Tangent", 77, 2, 78, 1),
    Sketcher.Constraint("Tangent", 78, 2, 79, 1),
    Sketcher.Constraint("Tangent", 79, 2, 80, 1),
    Sketcher.Constraint("Tangent", 80, 2, 81, 1),
    Sketcher.Constraint("Tangent", 81, 2, 82, 1),
    Sketcher.Constraint("Tangent", 82, 2, 83, 2),
    Sketcher.Constraint("Tangent", 83, 1, 0, 1),
    Sketcher.Constraint("Vertical", 0),
    Sketcher.Constraint("Vertical", 7),
    Sketcher.Constraint("Horizontal", 9),
    Sketcher.Constraint("Vertical", 11),
    Sketcher.Constraint("Horizontal", 13),
    Sketcher.Constraint("Vertical", 15),
    Sketcher.Constraint("Horizontal", 17),
    Sketcher.Constraint("Vertical", 19),
    Sketcher.Constraint("Horizontal", 21),
    Sketcher.Constraint("Horizontal", 28),
    Sketcher.Constraint("Vertical", 30),
    Sketcher.Constraint("Horizontal", 32),
    Sketcher.Constraint("Vertical", 34),
    Sketcher.Constraint("Horizontal", 36),
    Sketcher.Constraint("Vertical", 38),
    Sketcher.Constraint("Horizontal", 40),
    Sketcher.Constraint("Vertical", 42),
    Sketcher.Constraint("Vertical", 49),
    Sketcher.Constraint("Horizontal", 51),
    Sketcher.Constraint("Vertical", 53),
    Sketcher.Constraint("Horizontal", 55),
    Sketcher.Constraint("Vertical", 57),
    Sketcher.Constraint("Horizontal", 59),
    Sketcher.Constraint("Vertical", 61),
    Sketcher.Constraint("Horizontal", 63),
    Sketcher.Constraint("Horizontal", 70),
    Sketcher.Constraint("Vertical", 72),
    Sketcher.Constraint("Horizontal", 74),
    Sketcher.Constraint("Vertical", 76),
    Sketcher.Constraint("Horizontal", 78),
    Sketcher.Constraint("Vertical", 80),
    Sketcher.Constraint("Horizontal", 82),
    Sketcher.Constraint("Coincident", 5, 3, 2, 3),
    Sketcher.Constraint("Coincident", 26, 3, 23, 3),
    Sketcher.Constraint("Coincident", 47, 3, 44, 3),
    Sketcher.Constraint("Coincident", 68, 3, 65, 3),
    Sketcher.Constraint("Equal", 2, 5),
    Sketcher.Constraint("Equal", 1, 6),
    Sketcher.Constraint("Equal", 6, 8),
    Sketcher.Constraint("Equal", 8, 10),
    Sketcher.Constraint("Equal", 10, 12),
    Sketcher.Constraint("Equal", 12, 14),
    Sketcher.Constraint("Equal", 14, 16),
    Sketcher.Constraint("Equal", 16, 18),
    Sketcher.Constraint("Equal", 18, 20),
    Sketcher.Constraint("Equal", 20, 22),
    Sketcher.Constraint("Equal", 5, 23),
    Sketcher.Constraint("Equal", 23, 26),
    Sketcher.Constraint("Equal", 22, 27),
    Sketcher.Constraint("Equal", 27, 29),
    Sketcher.Constraint("Equal", 29, 31),
    Sketcher.Constraint("Equal", 31, 33),
    Sketcher.Constraint("Equal", 33, 35),
    Sketcher.Constraint("Equal", 35, 37),
    Sketcher.Constraint("Equal", 37, 39),
    Sketcher.Constraint("Equal", 39, 41),
    Sketcher.Constraint("Equal", 41, 43),
    Sketcher.Constraint("Equal", 26, 44),
    Sketcher.Constraint("Equal", 44, 47),
    Sketcher.Constraint("Equal", 43, 48),
    Sketcher.Constraint("Equal", 48, 50),
    Sketcher.Constraint("Equal", 50, 52),
    Sketcher.Constraint("Equal", 52, 54),
    Sketcher.Constraint("Equal", 54, 56),
    Sketcher.Constraint("Equal", 56, 58),
    Sketcher.Constraint("Equal", 58, 60),
    Sketcher.Constraint("Equal", 60, 62),
    Sketcher.Constraint("Equal", 62, 64),
    Sketcher.Constraint("Equal", 47, 65),
    Sketcher.Constraint("Equal", 65, 68),
    Sketcher.Constraint("Equal", 64, 69),
    Sketcher.Constraint("Equal", 69, 71),
    Sketcher.Constraint("Equal", 71, 73),
    Sketcher.Constraint("Equal", 73, 75),
    Sketcher.Constraint("Equal", 75, 77),
    Sketcher.Constraint("Equal", 77, 79),
    Sketcher.Constraint("Equal", 79, 81),
    Sketcher.Constraint("Equal", 81, 83),
    Sketcher.Constraint("Equal", 84, 85),
    Sketcher.Constraint("Equal", 85, 86),
    Sketcher.Constraint("Equal", 86, 88),
    Sketcher.Constraint("Perpendicular", 3, 4),
    Sketcher.Constraint("Parallel", 4, 24),
    Sketcher.Constraint("Perpendicular", 24, 25),
    Sketcher.Constraint("Parallel", 25, 45),
    Sketcher.Constraint("Perpendicular", 45, 46),
    Sketcher.Constraint("Parallel", 46, 66),
    Sketcher.Constraint("Perpendicular", 66, 67),
    Sketcher.Constraint("Horizontal", 1, 3, 6, 3),
    Sketcher.Constraint("Horizontal", 43, 3, 48, 3),
    Sketcher.Constraint("Horizontal", 41, 3, 50, 3),
    Sketcher.Constraint("Horizontal", 37, 3, 54, 3),
    Sketcher.Constraint("Horizontal", 33, 3, 58, 3),
    Sketcher.Constraint("Horizontal", 29, 3, 62, 3),
    Sketcher.Constraint("Horizontal", 26, 3, 65, 3),
    Sketcher.Constraint("Horizontal", 22, 3, 69, 3),
    Sketcher.Constraint("Horizontal", 18, 3, 73, 3),
    Sketcher.Constraint("Horizontal", 14, 3, 77, 3),
    Sketcher.Constraint("Horizontal", 10, 3, 81, 3),
    Sketcher.Constraint("Horizontal", 84, 3, 85, 3),
    Sketcher.Constraint("Horizontal", 68, 3, 87, 3),
    Sketcher.Constraint("Horizontal", 86, 3, 88, 3),
    Sketcher.Constraint("Horizontal", 2, 1, 4, 2),
    Sketcher.Constraint("Horizontal", 87, 3, 24, 2),
    Sketcher.Constraint("Horizontal", 44, 1, 46, 2),
    Sketcher.Constraint("Horizontal", 25, 2, 65, 1),
    Sketcher.Constraint("Horizontal", 24, 2, 66, 2),
    Sketcher.Constraint("Horizontal", 23, 1, 67, 2),
    Sketcher.Constraint("Vertical", 22, 3, 27, 3),
    Sketcher.Constraint("Vertical", 20, 3, 29, 3),
    Sketcher.Constraint("Vertical", 16, 3, 33, 3),
    Sketcher.Constraint("Vertical", 12, 3, 37, 3),
    Sketcher.Constraint("Vertical", 8, 3, 41, 3),
    Sketcher.Constraint("Vertical", 5, 3, 44, 3),
    Sketcher.Constraint("Vertical", 62, 3, 71, 3),
    Sketcher.Constraint("Vertical", 58, 3, 75, 3),
    Sketcher.Constraint("Vertical", 54, 3, 79, 3),
    Sketcher.Constraint("Vertical", 84, 3, 86, 3),
    Sketcher.Constraint("Vertical", 47, 3, 87, 3),
    Sketcher.Constraint("Vertical", 85, 3, 88, 3),
    Sketcher.Constraint("Vertical", 4, 2, 44, 1),
    Sketcher.Constraint("Equal", 9, 17),
    Sketcher.Constraint("Equal", 40, 51),
    Sketcher.Constraint("Equal", 36, 55),
    Sketcher.Constraint("Equal", 51, 59),
    Sketcher.Constraint("Equal", 28, 63),
    Sketcher.Constraint("Equal", 70, 0),
    Sketcher.Constraint("Equal", 82, 11),
    Sketcher.Constraint("Equal", 78, 15),
    Sketcher.Constraint("Equal", 11, 19),
    Sketcher.Constraint("Equal", 19, 30),
    Sketcher.Constraint("Equal", 15, 34),
    Sketcher.Constraint("Equal", 30, 38),
    Sketcher.Constraint("Equal", 7, 42),
    Sketcher.Constraint("Equal", 4, 24),
    Sketcher.Constraint("Diameter", 84, Q("4 mm")),
    Sketcher.Constraint("Diameter", 87, Q("4.3 mm")),
    Sketcher.Constraint("Radius", 1, Q("0.3 mm")),
    Sketcher.Constraint("DistanceX", 9, 1, 9, 2, Q("0.9 mm")),
    Sketcher.Constraint("DistanceX", 13, 2, 13, 1, Q("6.75 mm")),
    Sketcher.Constraint("Radius", 2, Q("6.490833 mm")),
    Sketcher.Constraint("DistanceX", 21, 1, 21, 2, Q("3.257251 mm")),
    Sketcher.Constraint("DistanceY", -1, 1, 43, 3, Q("1182.248799 mm")),
    Sketcher.Constraint("DistanceY", -1, 1, 2, 3, Q("1196.982382 mm")),
    Sketcher.Constraint("DistanceY", -1, 1, 8, 3, Q("1195.391548 mm")),
    Sketcher.Constraint("DistanceX", -1, 1, 65, 3, Q("2313.404761 mm")),
    Sketcher.Constraint("DistanceY", -1, 1, 84, 3, Q("1180.191548 mm")),
    Sketcher.Constraint("DistanceY", -1, 1, 86, 3, Q("1194.191548 mm")),
    Sketcher.Constraint("DistanceY", -1, 1, 3, 2, Q("1190.191548 mm")),
    Sketcher.Constraint("DistanceX", -1, 1, 84, 3, Q("2310.613927 mm")),
    Sketcher.Constraint("DistanceX", -1, 1, 85, 3, Q("2296.613927 mm")),
])
pad1 = doc.addObject("PartDesign::Pad", "Pad")
body.addObject(pad1)
pad1.Profile = sketch1
pad1.Length = 272

doc.recompute()
